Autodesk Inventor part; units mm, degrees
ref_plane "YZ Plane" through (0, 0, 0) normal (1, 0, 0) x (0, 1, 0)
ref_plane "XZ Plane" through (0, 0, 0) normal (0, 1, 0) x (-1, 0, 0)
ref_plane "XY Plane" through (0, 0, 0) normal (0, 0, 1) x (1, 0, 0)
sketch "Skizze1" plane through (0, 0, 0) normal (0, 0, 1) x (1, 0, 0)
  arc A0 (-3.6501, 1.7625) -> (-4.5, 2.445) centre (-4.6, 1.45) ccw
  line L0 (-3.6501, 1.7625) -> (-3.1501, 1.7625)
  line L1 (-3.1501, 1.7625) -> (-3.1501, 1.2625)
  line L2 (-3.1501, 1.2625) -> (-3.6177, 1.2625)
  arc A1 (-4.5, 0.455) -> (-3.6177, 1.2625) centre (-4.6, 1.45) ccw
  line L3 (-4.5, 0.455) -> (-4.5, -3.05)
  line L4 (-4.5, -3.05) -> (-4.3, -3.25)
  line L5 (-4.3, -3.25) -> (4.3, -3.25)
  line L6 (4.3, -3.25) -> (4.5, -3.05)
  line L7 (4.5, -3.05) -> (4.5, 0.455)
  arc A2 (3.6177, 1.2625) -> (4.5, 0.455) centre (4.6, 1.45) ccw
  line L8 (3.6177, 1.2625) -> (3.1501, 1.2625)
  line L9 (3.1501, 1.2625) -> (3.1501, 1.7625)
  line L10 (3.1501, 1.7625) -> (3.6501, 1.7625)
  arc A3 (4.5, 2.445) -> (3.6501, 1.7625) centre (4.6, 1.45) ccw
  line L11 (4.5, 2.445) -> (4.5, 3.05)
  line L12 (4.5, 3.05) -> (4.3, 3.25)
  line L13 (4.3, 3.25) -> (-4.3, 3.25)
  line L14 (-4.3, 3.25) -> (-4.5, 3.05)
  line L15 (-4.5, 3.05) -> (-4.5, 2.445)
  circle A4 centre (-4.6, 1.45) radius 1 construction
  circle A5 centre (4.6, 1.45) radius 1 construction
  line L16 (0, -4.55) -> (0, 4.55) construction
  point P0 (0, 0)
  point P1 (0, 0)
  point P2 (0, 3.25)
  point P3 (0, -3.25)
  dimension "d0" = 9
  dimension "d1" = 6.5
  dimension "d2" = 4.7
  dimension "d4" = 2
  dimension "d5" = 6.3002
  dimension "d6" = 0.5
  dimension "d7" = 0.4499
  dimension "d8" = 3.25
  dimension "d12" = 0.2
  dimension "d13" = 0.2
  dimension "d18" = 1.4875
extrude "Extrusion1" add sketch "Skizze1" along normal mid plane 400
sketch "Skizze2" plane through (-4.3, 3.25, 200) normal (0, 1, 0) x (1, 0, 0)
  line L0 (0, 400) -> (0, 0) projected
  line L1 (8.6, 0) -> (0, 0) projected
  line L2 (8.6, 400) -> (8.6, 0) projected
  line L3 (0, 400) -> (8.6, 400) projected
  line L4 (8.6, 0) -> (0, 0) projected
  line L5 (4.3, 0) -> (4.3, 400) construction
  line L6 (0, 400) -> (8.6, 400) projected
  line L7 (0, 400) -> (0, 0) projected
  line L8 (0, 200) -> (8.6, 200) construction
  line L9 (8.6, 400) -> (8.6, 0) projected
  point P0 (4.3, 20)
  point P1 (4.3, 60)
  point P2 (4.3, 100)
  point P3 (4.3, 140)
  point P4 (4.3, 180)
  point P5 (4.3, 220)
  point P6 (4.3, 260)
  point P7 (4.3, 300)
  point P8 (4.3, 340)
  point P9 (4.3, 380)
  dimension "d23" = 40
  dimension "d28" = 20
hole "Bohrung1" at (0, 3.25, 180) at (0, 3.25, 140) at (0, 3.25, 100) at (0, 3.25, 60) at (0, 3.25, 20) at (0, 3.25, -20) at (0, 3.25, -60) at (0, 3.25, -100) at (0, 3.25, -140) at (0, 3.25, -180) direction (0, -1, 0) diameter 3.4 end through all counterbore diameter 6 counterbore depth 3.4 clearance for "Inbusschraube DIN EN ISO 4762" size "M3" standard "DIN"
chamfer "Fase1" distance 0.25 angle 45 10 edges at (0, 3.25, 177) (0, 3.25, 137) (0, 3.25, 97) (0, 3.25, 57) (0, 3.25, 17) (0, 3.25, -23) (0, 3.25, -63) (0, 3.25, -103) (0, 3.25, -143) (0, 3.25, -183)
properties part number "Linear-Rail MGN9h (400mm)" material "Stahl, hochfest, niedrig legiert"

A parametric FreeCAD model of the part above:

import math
import FreeCAD as App
import Part
import Sketcher
Q = App.Units.Quantity


def edges_at(feature, points):
    """Names of the edges that pass closest to the given points."""
    edges = feature.Shape.Edges
    near = lambda p: min(range(len(edges)), key=lambda i: edges[i].distToShape(Part.Vertex(*p))[0])
    return sorted({f"Edge{near(p) + 1}" for p in points})

doc = App.newDocument("Part")
body = doc.addObject("PartDesign::Body", "Body")

sketch1 = body.newObject("Sketcher::SketchObject", "Sketch")
sketch1.AttachmentSupport = (doc.getObject("XY_Plane"), [""])
sketch1.MapMode = "FlatFace"
sketch1.addGeometry(Part.ArcOfCircle(Part.Circle(App.Vector(-4.6, 1.45, 0), App.Vector(0, 0, 1), 1.000012), math.radians(18.210275), math.radians(84.260902)), False)
sketch1.addGeometry(Part.LineSegment(App.Vector(-3.6501, 1.7625, 0), App.Vector(-3.1501, 1.7625, 0)), False)
sketch1.addGeometry(Part.LineSegment(App.Vector(-3.1501, 1.7625, 0), App.Vector(-3.1501, 1.2625, 0)), False)
sketch1.addGeometry(Part.LineSegment(App.Vector(-3.1501, 1.2625, 0), App.Vector(-3.6177, 1.2625, 0)), False)
sketch1.addGeometry(Part.ArcOfCircle(Part.Circle(App.Vector(-4.6, 1.45, 0), App.Vector(0, 0, 1), 1.000012), math.radians(-84.260902), math.radians(-10.806543)), False)
sketch1.addGeometry(Part.LineSegment(App.Vector(-4.5, 0.455, 0), App.Vector(-4.5, -3.05, 0)), False)
sketch1.addGeometry(Part.LineSegment(App.Vector(-4.5, -3.05, 0), App.Vector(-4.3, -3.25, 0)), False)
sketch1.addGeometry(Part.LineSegment(App.Vector(-4.3, -3.25, 0), App.Vector(4.3, -3.25, 0)), False)
sketch1.addGeometry(Part.LineSegment(App.Vector(4.3, -3.25, 0), App.Vector(4.5, -3.05, 0)), False)
sketch1.addGeometry(Part.LineSegment(App.Vector(4.5, -3.05, 0), App.Vector(4.5, 0.455, 0)), False)
sketch1.addGeometry(Part.ArcOfCircle(Part.Circle(App.Vector(4.6, 1.45, 0), App.Vector(0, 0, 1), 1), math.radians(-169.193457), math.radians(-95.739098)), False)
sketch1.addGeometry(Part.LineSegment(App.Vector(3.6177, 1.2625, 0), App.Vector(3.1501, 1.2625, 0)), False)
sketch1.addGeometry(Part.LineSegment(App.Vector(3.1501, 1.2625, 0), App.Vector(3.1501, 1.7625, 0)), False)
sketch1.addGeometry(Part.LineSegment(App.Vector(3.1501, 1.7625, 0), App.Vector(3.6501, 1.7625, 0)), False)
sketch1.addGeometry(Part.ArcOfCircle(Part.Circle(App.Vector(4.6, 1.45, 0), App.Vector(0, 0, 1), 1), math.radians(95.739098), math.radians(161.789725)), False)
sketch1.addGeometry(Part.LineSegment(App.Vector(4.5, 2.445, 0), App.Vector(4.5, 3.05, 0)), False)
sketch1.addGeometry(Part.LineSegment(App.Vector(4.5, 3.05, 0), App.Vector(4.3, 3.25, 0)), False)
sketch1.addGeometry(Part.LineSegment(App.Vector(4.3, 3.25, 0), App.Vector(-4.3, 3.25, 0)), False)
sketch1.addGeometry(Part.LineSegment(App.Vector(-4.3, 3.25, 0), App.Vector(-4.5, 3.05, 0)), False)
sketch1.addGeometry(Part.LineSegment(App.Vector(-4.5, 3.05, 0), App.Vector(-4.5, 2.445, 0)), False)
sketch1.addConstraint(Sketcher.Constraint("Coincident", 0, 1, 1, 1))
sketch1.addConstraint(Sketcher.Constraint("Coincident", 1, 2, 2, 1))
sketch1.addConstraint(Sketcher.Constraint("Coincident", 2, 2, 3, 1))
sketch1.addConstraint(Sketcher.Constraint("Coincident", 3, 2, 4, 2))
sketch1.addConstraint(Sketcher.Constraint("Coincident", 4, 1, 5, 1))
sketch1.addConstraint(Sketcher.Constraint("Coincident", 5, 2, 6, 1))
sketch1.addConstraint(Sketcher.Constraint("Coincident", 6, 2, 7, 1))
sketch1.addConstraint(Sketcher.Constraint("Coincident", 7, 2, 8, 1))
sketch1.addConstraint(Sketcher.Constraint("Coincident", 8, 2, 9, 1))
sketch1.addConstraint(Sketcher.Constraint("Coincident", 9, 2, 10, 2))
sketch1.addConstraint(Sketcher.Constraint("Coincident", 10, 1, 11, 1))
sketch1.addConstraint(Sketcher.Constraint("Coincident", 11, 2, 12, 1))
sketch1.addConstraint(Sketcher.Constraint("Coincident", 12, 2, 13, 1))
sketch1.addConstraint(Sketcher.Constraint("Coincident", 13, 2, 14, 2))
sketch1.addConstraint(Sketcher.Constraint("Coincident", 14, 1, 15, 1))
sketch1.addConstraint(Sketcher.Constraint("Coincident", 15, 2, 16, 1))
sketch1.addConstraint(Sketcher.Constraint("Coincident", 16, 2, 17, 1))
sketch1.addConstraint(Sketcher.Constraint("Coincident", 17, 2, 18, 1))
sketch1.addConstraint(Sketcher.Constraint("Coincident", 18, 2, 19, 1))
sketch1.addConstraint(Sketcher.Constraint("Coincident", 19, 2, 0, 2))
sketch1.addConstraint(Sketcher.Constraint("Horizontal", 1))
sketch1.addConstraint(Sketcher.Constraint("Vertical", 2))
sketch1.addConstraint(Sketcher.Constraint("Horizontal", 3))
sketch1.addConstraint(Sketcher.Constraint("Vertical", 5))
sketch1.addConstraint(Sketcher.Constraint("Horizontal", 7))
sketch1.addConstraint(Sketcher.Constraint("Vertical", 9))
sketch1.addConstraint(Sketcher.Constraint("Horizontal", 11))
sketch1.addConstraint(Sketcher.Constraint("Vertical", 12))
sketch1.addConstraint(Sketcher.Constraint("Horizontal", 13))
sketch1.addConstraint(Sketcher.Constraint("Vertical", 15))
sketch1.addConstraint(Sketcher.Constraint("Horizontal", 17))
sketch1.addConstraint(Sketcher.Constraint("Vertical", 19))
sketch1.addConstraint(Sketcher.Constraint("Coincident", 4, 3, 0, 3))
sketch1.addConstraint(Sketcher.Constraint("Coincident", 14, 3, 10, 3))
sketch1.addConstraint(Sketcher.Constraint("Equal", 0, 4))
sketch1.addConstraint(Sketcher.Constraint("Equal", 4, 10))
sketch1.addConstraint(Sketcher.Constraint("Equal", 10, 14))
sketch1.addConstraint(Sketcher.Constraint("Symmetric", 5, 2, 15, 2, -1, 1))
sketch1.addConstraint(Sketcher.Constraint("Symmetric", 6, 2, 16, 2, -1, 1))
sketch1.addConstraint(Sketcher.Constraint("Symmetric", 8, 2, 18, 2, -1, 1))
sketch1.addConstraint(Sketcher.Constraint("Symmetric", 0, 3, 10, 3, -2))
sketch1.addConstraint(Sketcher.Constraint("Symmetric", 5, 2, 8, 2, -2))
sketch1.addConstraint(Sketcher.Constraint("Symmetric", 2, 2, 11, 2, -2))
sketch1.addConstraint(Sketcher.Constraint("Perpendicular", 6, 8))
sketch1.addConstraint(Sketcher.Constraint("Perpendicular", 16, 18))
sketch1.addConstraint(Sketcher.Constraint("Horizontal", 1, 2, 12, 2))
sketch1.addConstraint(Sketcher.Constraint("Vertical", 7, 2, 16, 2))
sketch1.addConstraint(Sketcher.Constraint("Equal", 13, 2))
sketch1.addConstraint(Sketcher.Constraint("Radius", 0, Q("1 mm")))
sketch1.addConstraint(Sketcher.Constraint("DistanceX", 1, 1, 1, 2, Q("0.5 mm")))
sketch1.addConstraint(Sketcher.Constraint("DistanceX", 5, 2, 6, 2, Q("0.2 mm")))
sketch1.addConstraint(Sketcher.Constraint("DistanceY", 6, 2, 0, 3, Q("4.7 mm")))
sketch1.addConstraint(Sketcher.Constraint("DistanceY", 6, 2, -1, 1, Q("3.25 mm")))
sketch1.addConstraint(Sketcher.Constraint("DistanceX", 7, 1, 7, 2, Q("8.6 mm")))
sketch1.addConstraint(Sketcher.Constraint("DistanceX", 0, 3, -1, 1, Q("4.6 mm")))
sketch1.addConstraint(Sketcher.Constraint("DistanceY", 13, 2, 16, 2, Q("1.4875 mm")))
pad1 = body.newObject("PartDesign::Pad", "Pad")
pad1.Profile = sketch1
pad1.Length = 400
pad1.Midplane = True

sketch2 = body.newObject("Sketcher::SketchObject", "Sketch001")
sketch2.AttachmentSupport = (doc.getObject("XZ_Plane"), [""])
sketch2.MapMode = "FlatFace"
sketch2.AttachmentOffset = App.Placement(App.Vector(0, 0, -3.25), App.Rotation())
sketch2.addGeometry(Part.Circle(App.Vector(0, 180, 0), App.Vector(0, 0, 1), 1.7), False)
sketch2.addGeometry(Part.Circle(App.Vector(0, 140, 0), App.Vector(0, 0, 1), 1.7), False)
sketch2.addGeometry(Part.Circle(App.Vector(0, 100, 0), App.Vector(0, 0, 1), 1.7), False)
sketch2.addGeometry(Part.Circle(App.Vector(0, 60, 0), App.Vector(0, 0, 1), 1.7), False)
sketch2.addGeometry(Part.Circle(App.Vector(0, 20, 0), App.Vector(0, 0, 1), 1.7), False)
sketch2.addGeometry(Part.Circle(App.Vector(0, -20, 0), App.Vector(0, 0, 1), 1.7), False)
sketch2.addGeometry(Part.Circle(App.Vector(0, -60, 0), App.Vector(0, 0, 1), 1.7), False)
sketch2.addGeometry(Part.Circle(App.Vector(0, -100, 0), App.Vector(0, 0, 1), 1.7), False)
sketch2.addGeometry(Part.Circle(App.Vector(0, -140, 0), App.Vector(0, 0, 1), 1.7), False)
sketch2.addGeometry(Part.Circle(App.Vector(0, -180, 0), App.Vector(0, 0, 1), 1.7), False)
sketch2.addConstraint(Sketcher.Constraint("Equal", 0, 1))
sketch2.addConstraint(Sketcher.Constraint("Equal", 1, 2))
sketch2.addConstraint(Sketcher.Constraint("Equal", 2, 3))
sketch2.addConstraint(Sketcher.Constraint("Equal", 3, 4))
sketch2.addConstraint(Sketcher.Constraint("Equal", 4, 5))
sketch2.addConstraint(Sketcher.Constraint("Equal", 5, 6))
sketch2.addConstraint(Sketcher.Constraint("Equal", 6, 7))
sketch2.addConstraint(Sketcher.Constraint("Equal", 7, 8))
sketch2.addConstraint(Sketcher.Constraint("Equal", 8, 9))
sketch2.addConstraint(Sketcher.Constraint("Symmetric", 4, 3, 5, 3, -1, 1))
sketch2.addConstraint(Sketcher.Constraint("Symmetric", 3, 3, 6, 3, -1, 1))
sketch2.addConstraint(Sketcher.Constraint("Symmetric", 2, 3, 7, 3, -1, 1))
sketch2.addConstraint(Sketcher.Constraint("Symmetric", 1, 3, 8, 3, -1, 1))
sketch2.addConstraint(Sketcher.Constraint("Symmetric", 0, 3, 9, 3, -1, 1))
sketch2.addConstraint(Sketcher.Constraint("PointOnObject", 0, 3, -2))
sketch2.addConstraint(Sketcher.Constraint("PointOnObject", 1, 3, -2))
sketch2.addConstraint(Sketcher.Constraint("PointOnObject", 2, 3, -2))
sketch2.addConstraint(Sketcher.Constraint("PointOnObject", 3, 3, -2))
sketch2.addConstraint(Sketcher.Constraint("PointOnObject", 4, 3, -2))
sketch2.addConstraint(Sketcher.Constraint("Diameter", 0, Q("3.4 mm")))
sketch2.addConstraint(Sketcher.Constraint("DistanceY", -1, 1, 0, 3, Q("180 mm")))
sketch2.addConstraint(Sketcher.Constraint("DistanceY", -1, 1, 1, 3, Q("140 mm")))
sketch2.addConstraint(Sketcher.Constraint("DistanceY", -1, 1, 2, 3, Q("100 mm")))
sketch2.addConstraint(Sketcher.Constraint("DistanceY", -1, 1, 3, 3, Q("60 mm")))
sketch2.addConstraint(Sketcher.Constraint("DistanceY", -1, 1, 4, 3, Q("20 mm")))
doc.recompute()
hole = body.newObject("PartDesign::Hole", "Hole")
hole.Profile = sketch2
hole.ThreadType = "None"
hole.Diameter = 3.4
hole.DepthType = "ThroughAll"
hole.HoleCutType = "Counterbore"
hole.HoleCutDiameter = 6
hole.HoleCutDepth = 3.4
hole.Reversed = True
doc.recompute()

chamfer = body.newObject("PartDesign::Chamfer", "Chamfer")
chamfer.Base = (hole, edges_at(hole, [
    (0, 3.25, 177),
    (0, 3.25, 137),
    (0, 3.25, 97),
    (0, 3.25, 57),
    (0, 3.25, 17),
    (0, 3.25, -23),
    (0, 3.25, -63),
    (0, 3.25, -103),
    (0, 3.25, -143),
    (0, 3.25, -183),
]))
chamfer.Size = 0.25

doc.recompute()
